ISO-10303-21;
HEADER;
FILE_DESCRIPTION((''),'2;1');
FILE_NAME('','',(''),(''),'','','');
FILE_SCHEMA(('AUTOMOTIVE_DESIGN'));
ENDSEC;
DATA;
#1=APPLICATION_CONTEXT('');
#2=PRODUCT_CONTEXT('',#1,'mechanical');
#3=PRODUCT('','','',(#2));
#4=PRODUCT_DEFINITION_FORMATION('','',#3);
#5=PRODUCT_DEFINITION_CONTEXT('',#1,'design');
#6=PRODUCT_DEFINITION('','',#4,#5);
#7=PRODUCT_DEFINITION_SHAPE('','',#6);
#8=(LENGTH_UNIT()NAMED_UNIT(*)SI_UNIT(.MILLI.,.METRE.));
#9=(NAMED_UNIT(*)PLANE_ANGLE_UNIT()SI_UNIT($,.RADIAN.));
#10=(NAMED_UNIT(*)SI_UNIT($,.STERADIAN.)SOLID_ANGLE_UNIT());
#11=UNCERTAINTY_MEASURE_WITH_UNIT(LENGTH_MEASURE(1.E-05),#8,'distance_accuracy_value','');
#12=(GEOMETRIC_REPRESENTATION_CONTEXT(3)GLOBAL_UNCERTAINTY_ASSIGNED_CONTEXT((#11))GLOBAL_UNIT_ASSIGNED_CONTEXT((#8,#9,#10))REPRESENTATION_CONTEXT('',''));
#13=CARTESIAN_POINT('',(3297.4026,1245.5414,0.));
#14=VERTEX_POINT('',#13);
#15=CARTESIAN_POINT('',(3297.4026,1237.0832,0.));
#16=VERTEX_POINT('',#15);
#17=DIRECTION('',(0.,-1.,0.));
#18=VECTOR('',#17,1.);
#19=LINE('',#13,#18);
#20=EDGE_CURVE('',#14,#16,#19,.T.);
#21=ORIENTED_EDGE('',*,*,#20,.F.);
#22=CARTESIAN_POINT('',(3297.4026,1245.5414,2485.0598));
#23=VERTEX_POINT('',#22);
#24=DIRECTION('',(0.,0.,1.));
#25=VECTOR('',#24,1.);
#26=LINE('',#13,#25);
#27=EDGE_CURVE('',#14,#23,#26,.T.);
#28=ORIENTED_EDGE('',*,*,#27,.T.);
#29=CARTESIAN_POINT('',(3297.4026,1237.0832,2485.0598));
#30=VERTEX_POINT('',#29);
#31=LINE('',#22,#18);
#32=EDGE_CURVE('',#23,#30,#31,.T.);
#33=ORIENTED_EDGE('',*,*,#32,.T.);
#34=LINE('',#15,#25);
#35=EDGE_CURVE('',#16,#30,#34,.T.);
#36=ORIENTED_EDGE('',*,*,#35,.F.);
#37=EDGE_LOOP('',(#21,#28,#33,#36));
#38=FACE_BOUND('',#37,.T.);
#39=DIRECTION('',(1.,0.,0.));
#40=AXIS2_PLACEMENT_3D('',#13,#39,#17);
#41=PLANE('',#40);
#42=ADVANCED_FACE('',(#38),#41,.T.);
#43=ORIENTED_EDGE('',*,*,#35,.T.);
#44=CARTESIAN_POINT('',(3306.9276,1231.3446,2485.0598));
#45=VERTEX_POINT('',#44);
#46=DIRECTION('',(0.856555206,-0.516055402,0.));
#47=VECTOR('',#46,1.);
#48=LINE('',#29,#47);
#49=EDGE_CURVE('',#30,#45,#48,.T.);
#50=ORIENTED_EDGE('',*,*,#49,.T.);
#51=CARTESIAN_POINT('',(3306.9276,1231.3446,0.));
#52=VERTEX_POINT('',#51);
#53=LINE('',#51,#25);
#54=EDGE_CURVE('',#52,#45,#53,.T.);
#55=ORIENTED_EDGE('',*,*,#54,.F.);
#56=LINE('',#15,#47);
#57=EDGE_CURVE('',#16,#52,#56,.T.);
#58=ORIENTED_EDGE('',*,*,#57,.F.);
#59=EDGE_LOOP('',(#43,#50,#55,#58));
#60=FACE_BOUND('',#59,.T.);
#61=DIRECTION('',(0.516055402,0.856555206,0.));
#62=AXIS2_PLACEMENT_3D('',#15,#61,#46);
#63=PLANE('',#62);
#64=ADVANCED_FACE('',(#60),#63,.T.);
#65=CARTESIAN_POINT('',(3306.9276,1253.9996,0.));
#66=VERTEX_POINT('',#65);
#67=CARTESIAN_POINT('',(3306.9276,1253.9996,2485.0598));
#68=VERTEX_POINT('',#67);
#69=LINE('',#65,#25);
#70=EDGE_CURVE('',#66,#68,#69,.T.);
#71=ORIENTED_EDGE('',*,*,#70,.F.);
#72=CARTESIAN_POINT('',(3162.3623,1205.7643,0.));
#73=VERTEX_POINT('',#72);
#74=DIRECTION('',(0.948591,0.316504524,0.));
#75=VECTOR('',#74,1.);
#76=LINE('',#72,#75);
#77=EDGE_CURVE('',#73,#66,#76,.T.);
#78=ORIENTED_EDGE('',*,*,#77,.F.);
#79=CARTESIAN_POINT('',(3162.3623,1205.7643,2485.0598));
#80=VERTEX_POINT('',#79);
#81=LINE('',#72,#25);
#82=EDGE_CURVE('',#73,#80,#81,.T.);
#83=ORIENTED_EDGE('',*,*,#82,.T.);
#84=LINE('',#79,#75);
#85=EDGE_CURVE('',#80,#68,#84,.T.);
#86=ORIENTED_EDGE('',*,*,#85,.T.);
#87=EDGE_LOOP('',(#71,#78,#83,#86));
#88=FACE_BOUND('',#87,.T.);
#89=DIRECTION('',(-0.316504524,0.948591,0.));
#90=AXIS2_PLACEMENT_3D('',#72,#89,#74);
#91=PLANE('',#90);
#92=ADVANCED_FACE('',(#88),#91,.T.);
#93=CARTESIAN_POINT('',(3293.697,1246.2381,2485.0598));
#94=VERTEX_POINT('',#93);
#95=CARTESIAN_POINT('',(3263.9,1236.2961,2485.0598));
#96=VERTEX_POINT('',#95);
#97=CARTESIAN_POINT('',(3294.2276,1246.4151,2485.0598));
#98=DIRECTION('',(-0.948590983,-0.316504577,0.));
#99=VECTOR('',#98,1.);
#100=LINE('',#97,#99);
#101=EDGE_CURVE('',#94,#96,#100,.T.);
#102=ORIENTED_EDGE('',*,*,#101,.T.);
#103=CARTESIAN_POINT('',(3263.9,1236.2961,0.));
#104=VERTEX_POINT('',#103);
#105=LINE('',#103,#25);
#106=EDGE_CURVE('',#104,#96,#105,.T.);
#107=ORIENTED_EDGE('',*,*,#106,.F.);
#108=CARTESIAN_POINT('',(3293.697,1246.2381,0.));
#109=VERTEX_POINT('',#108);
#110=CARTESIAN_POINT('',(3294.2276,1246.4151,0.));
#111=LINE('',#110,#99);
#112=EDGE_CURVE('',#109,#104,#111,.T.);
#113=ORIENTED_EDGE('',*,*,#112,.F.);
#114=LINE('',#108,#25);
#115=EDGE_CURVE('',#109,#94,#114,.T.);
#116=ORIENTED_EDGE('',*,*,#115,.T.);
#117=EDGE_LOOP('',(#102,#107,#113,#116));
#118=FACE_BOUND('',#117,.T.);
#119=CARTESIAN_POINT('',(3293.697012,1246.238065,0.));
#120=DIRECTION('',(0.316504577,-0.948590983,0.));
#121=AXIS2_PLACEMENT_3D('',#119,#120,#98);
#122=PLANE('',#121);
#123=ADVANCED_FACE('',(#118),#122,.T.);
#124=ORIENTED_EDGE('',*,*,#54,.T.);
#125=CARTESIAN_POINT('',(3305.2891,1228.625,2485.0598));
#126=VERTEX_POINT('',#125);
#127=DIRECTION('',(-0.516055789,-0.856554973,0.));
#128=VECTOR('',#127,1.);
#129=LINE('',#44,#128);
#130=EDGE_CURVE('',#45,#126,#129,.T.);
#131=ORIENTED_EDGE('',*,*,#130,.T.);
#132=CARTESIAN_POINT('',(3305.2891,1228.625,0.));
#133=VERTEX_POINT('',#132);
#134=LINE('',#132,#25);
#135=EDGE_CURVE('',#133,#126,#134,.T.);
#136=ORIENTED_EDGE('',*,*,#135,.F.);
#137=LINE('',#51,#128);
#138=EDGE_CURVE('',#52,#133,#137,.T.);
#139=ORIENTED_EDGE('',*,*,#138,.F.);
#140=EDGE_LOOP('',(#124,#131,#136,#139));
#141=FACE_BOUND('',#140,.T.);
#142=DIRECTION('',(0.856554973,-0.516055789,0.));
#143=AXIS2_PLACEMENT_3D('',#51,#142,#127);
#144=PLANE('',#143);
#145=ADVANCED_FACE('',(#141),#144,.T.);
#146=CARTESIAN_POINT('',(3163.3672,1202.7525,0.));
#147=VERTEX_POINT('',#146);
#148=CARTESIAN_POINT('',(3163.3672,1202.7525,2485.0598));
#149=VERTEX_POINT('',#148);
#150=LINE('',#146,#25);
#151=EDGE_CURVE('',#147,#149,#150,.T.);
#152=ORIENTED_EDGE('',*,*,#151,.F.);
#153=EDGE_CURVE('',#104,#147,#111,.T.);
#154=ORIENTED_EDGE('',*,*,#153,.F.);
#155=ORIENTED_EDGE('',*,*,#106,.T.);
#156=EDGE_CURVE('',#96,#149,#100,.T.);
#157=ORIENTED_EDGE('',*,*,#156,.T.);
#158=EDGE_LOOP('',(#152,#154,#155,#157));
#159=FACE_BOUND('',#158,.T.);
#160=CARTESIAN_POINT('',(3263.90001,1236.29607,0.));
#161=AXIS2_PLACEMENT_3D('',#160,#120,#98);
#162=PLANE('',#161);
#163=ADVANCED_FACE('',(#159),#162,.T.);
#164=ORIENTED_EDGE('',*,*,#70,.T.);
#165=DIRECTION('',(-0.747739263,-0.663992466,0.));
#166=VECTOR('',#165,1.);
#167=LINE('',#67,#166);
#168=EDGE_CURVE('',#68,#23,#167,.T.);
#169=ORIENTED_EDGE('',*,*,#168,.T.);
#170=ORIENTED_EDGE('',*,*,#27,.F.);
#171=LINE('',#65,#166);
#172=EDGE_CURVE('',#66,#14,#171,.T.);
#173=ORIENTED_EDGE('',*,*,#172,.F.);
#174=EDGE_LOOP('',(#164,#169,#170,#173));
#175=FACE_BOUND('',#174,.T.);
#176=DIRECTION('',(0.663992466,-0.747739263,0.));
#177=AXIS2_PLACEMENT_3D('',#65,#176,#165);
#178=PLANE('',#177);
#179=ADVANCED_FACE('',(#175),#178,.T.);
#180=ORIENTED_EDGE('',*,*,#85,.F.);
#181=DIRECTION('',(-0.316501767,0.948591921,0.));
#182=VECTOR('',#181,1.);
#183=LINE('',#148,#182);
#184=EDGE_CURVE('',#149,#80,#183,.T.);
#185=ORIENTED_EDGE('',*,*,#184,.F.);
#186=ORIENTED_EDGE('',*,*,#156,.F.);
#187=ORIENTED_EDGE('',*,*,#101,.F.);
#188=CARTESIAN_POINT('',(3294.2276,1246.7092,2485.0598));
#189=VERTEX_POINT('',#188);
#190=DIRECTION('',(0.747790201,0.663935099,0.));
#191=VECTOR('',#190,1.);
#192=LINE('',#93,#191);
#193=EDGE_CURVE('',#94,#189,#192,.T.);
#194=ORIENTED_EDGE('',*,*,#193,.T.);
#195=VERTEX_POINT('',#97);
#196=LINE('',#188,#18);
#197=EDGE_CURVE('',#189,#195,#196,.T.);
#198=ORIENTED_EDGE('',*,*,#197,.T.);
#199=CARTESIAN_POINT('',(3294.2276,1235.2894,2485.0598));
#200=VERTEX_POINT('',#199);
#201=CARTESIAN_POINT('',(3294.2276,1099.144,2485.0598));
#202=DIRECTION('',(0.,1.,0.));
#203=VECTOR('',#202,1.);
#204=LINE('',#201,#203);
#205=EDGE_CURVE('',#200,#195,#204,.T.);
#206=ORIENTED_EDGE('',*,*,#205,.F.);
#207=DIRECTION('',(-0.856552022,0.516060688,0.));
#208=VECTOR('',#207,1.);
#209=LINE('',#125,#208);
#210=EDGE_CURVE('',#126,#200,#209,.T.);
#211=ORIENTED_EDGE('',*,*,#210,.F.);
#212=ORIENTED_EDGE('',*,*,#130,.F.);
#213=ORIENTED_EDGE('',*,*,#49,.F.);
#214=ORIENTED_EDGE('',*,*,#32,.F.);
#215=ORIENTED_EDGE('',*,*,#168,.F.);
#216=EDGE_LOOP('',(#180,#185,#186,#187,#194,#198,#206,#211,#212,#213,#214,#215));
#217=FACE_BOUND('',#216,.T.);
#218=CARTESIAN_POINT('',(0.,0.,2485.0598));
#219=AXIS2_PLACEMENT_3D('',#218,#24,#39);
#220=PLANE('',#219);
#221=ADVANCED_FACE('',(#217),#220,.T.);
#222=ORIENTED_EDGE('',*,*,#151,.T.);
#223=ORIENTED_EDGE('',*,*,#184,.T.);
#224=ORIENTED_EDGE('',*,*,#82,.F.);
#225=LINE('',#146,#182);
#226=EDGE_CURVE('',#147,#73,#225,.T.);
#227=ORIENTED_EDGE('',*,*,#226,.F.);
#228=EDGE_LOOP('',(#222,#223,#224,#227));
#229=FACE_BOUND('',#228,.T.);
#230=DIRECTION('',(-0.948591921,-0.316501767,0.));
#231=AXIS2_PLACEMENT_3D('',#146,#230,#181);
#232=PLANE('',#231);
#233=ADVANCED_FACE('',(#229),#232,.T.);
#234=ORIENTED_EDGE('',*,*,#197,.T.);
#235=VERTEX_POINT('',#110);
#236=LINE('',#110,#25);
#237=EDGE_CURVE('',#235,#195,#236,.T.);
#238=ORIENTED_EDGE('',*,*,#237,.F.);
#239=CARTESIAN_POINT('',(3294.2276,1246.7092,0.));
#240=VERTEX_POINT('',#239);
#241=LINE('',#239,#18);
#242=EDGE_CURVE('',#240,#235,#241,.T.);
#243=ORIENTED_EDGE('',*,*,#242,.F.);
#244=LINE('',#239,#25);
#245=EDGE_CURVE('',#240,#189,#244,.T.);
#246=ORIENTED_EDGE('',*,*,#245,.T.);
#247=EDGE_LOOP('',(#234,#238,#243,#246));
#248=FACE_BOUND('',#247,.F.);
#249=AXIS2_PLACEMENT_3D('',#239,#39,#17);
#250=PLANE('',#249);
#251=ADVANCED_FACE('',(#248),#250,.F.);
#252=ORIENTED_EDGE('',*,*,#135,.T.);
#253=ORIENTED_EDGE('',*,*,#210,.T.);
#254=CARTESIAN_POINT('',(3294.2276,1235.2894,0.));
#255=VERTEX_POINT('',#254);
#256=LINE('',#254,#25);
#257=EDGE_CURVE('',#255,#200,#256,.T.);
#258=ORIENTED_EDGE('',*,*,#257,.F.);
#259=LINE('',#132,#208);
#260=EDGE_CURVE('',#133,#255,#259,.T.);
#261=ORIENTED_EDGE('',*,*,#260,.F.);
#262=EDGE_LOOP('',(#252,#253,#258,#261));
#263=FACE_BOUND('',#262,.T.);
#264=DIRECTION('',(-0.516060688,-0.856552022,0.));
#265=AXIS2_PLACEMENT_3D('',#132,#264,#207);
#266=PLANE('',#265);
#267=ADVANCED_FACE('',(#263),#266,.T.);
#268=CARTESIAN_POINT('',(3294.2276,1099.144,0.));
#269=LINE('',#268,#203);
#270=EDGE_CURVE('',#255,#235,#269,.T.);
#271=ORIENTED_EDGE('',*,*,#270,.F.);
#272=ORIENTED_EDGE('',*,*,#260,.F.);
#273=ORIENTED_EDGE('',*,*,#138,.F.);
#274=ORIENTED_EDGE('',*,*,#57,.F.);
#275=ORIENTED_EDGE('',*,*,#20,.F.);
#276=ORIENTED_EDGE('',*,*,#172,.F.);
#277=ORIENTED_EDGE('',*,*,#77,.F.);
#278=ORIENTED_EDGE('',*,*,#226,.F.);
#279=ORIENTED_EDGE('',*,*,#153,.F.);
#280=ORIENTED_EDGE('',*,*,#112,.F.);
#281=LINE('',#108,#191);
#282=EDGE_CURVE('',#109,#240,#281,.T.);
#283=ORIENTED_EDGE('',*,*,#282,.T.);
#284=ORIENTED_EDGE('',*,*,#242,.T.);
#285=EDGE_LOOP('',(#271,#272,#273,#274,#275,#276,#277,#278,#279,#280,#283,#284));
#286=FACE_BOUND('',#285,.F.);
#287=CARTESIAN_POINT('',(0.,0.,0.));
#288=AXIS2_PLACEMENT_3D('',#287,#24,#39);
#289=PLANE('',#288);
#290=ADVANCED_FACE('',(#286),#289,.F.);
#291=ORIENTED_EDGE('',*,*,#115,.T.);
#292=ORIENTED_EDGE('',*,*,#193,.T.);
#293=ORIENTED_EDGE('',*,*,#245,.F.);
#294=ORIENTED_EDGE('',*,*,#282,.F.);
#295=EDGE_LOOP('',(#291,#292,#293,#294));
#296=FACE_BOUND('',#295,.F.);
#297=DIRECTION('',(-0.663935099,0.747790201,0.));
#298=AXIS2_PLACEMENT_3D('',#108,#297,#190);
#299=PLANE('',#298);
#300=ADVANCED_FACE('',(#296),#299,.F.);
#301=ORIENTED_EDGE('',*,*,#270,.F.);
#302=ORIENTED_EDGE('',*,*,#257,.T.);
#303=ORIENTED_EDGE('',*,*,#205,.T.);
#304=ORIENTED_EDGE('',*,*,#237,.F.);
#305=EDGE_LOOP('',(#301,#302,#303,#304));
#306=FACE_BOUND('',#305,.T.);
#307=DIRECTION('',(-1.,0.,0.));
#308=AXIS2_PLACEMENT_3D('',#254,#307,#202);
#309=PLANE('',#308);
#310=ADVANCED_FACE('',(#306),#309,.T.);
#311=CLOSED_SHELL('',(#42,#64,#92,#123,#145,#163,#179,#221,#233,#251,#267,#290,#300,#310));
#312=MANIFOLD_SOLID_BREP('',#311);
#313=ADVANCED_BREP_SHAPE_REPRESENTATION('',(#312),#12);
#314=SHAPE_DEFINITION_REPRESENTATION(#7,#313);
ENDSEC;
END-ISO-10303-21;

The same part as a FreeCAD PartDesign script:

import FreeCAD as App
import Part
import Sketcher
Q = App.Units.Quantity


def add_polygon(sketch, points):
    """Adds a closed chain of lines whose ends are joined by coincident constraints."""
    first, n = sketch.GeometryCount, len(points)
    for a, b in zip(points, points[1:] + points[:1]):
        sketch.addGeometry(Part.LineSegment(App.Vector(*a, 0), App.Vector(*b, 0)), False)
    for i in range(n):
        sketch.addConstraint(Sketcher.Constraint("Coincident", first + i, 2, first + (i + 1) % n, 1))

doc = App.newDocument("Part")
body = doc.addObject("PartDesign::Body", "Body")

sketch1 = body.newObject("Sketcher::SketchObject", "Sketch")
sketch1.AttachmentSupport = (doc.getObject("XY_Plane"), [""])
sketch1.MapMode = "FlatFace"
add_polygon(sketch1, [(3294.2276, 1246.7092), (3294.2276, 1235.2894), (3305.2891, 1228.625), (3306.9276, 1231.3446), (3297.4026, 1237.0832), (3297.4026, 1245.5414), (3306.9276, 1253.9996), (3162.3623, 1205.7643), (3163.3672, 1202.7525), (3293.697, 1246.2381)])
sketch1.addConstraint([
    Sketcher.Constraint("Vertical", 0),
    Sketcher.Constraint("Vertical", 4),
    Sketcher.Constraint("Perpendicular", 1, 2),
    Sketcher.Constraint("Perpendicular", 2, 3),
    Sketcher.Constraint("Perpendicular", 6, 7),
    Sketcher.Constraint("Perpendicular", 7, 8),
    Sketcher.Constraint("Parallel", 5, 9),
    Sketcher.Constraint("Vertical", 2, 2, 5, 2),
    Sketcher.Constraint("Equal", 2, 7),
    Sketcher.Constraint("Distance", 6, Q("6 in")),
    Sketcher.Constraint("DistanceX", 0, 2, 2, 2, Q("0.5 in")),
    Sketcher.Constraint("DistanceY", 4, 1, 4, 2, Q("0.333 in")),
    Sketcher.Constraint("Distance", 2, Q("0.125 in")),
    Sketcher.Constraint("DistanceX", 0, 2, 3, 2, Q("0.125 in")),
    Sketcher.Constraint("DistanceY", 1, 2, 3, 2, Q("0.333 in")),
    Sketcher.Constraint("DistanceY", 4, 2, 5, 2, Q("0.333 in")),
    Sketcher.Constraint("DistanceY", 0, 2, 0, 1, Q("0.4496 in")),
    Sketcher.Constraint("DistanceX", -1, 1, 0, 2, Q("129.694 in")),
    Sketcher.Constraint("DistanceX", -1, 1, 8, 2, Q("129.6731 in")),
    Sketcher.Constraint("DistanceY", -1, 1, 8, 2, Q("49.0645 in")),
])
pad1 = body.newObject("PartDesign::Pad", "Pad")
pad1.Profile = sketch1
pad1.Length = Q("97.837 in")

doc.recompute()
